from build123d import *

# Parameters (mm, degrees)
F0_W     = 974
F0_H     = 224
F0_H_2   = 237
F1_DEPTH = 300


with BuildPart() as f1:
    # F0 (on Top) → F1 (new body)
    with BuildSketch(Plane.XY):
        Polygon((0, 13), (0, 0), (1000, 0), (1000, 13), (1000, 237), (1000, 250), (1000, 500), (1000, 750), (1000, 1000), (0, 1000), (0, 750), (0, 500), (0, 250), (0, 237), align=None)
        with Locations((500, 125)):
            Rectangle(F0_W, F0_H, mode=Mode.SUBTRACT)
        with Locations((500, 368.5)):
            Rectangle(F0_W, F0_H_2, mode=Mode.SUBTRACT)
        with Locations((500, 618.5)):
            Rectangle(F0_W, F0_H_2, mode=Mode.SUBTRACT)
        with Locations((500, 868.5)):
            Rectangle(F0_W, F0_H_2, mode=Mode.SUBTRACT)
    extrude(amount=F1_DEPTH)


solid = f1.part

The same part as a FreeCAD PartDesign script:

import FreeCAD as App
import Part
import Sketcher
from FreeCAD import Vector
Q = App.Units.Quantity


def add_polygon(sketch, points):
    """Adds a closed chain of lines whose ends are joined by coincident constraints."""
    first, n = sketch.GeometryCount, len(points)
    for a, b in zip(points, points[1:] + points[:1]):
        sketch.addGeometry(Part.LineSegment(App.Vector(*a, 0), App.Vector(*b, 0)), False)
    for i in range(n):
        sketch.addConstraint(Sketcher.Constraint("Coincident", first + i, 2, first + (i + 1) % n, 1))

doc = App.newDocument("Part")
params = doc.addObject("Spreadsheet::Sheet", "Params")
for row, (alias, value) in enumerate([
    ("sketch1_width", "1000 mm"),
    ("sketch1_width2", "974 mm"),
    ("sketch1_height", "224 mm"),
    ("sketch1_height2", "237 mm"),
    ("pad1_length", "300 mm"),
], start=1):
    params.set(f"A{row}", alias)
    params.set(f"B{row}", "=" + value)
    params.setAlias(f"B{row}", alias)

body = doc.addObject("PartDesign::Body", "Body")

sketch1 = body.newObject("Sketcher::SketchObject", "Sketch")
sketch1.AttachmentSupport = (doc.getObject("XY_Plane"), [""])
sketch1.MapMode = "FlatFace"
add_polygon(sketch1, [(0, 0), (1000, 0), (1000, 1000), (0, 1000)])
add_polygon(sketch1, [(987, 13), (13, 13), (13, 237), (987, 237)])
add_polygon(sketch1, [(987, 250), (13, 250), (13, 487), (987, 487)])
add_polygon(sketch1, [(987, 500), (13, 500), (13, 737), (987, 737)])
add_polygon(sketch1, [(987, 750), (13, 750), (13, 987), (987, 987)])
sketch1.addConstraint(Sketcher.Constraint("Horizontal", 0))
sketch1.addConstraint(Sketcher.Constraint("Vertical", 1))
sketch1.addConstraint(Sketcher.Constraint("Horizontal", 2))
sketch1.addConstraint(Sketcher.Constraint("Vertical", 3))
sketch1.addConstraint(Sketcher.Constraint("Horizontal", 4))
sketch1.addConstraint(Sketcher.Constraint("Vertical", 5))
sketch1.addConstraint(Sketcher.Constraint("Horizontal", 6))
sketch1.addConstraint(Sketcher.Constraint("Vertical", 7))
sketch1.addConstraint(Sketcher.Constraint("Horizontal", 8))
sketch1.addConstraint(Sketcher.Constraint("Vertical", 9))
sketch1.addConstraint(Sketcher.Constraint("Horizontal", 10))
sketch1.addConstraint(Sketcher.Constraint("Vertical", 11))
sketch1.addConstraint(Sketcher.Constraint("Horizontal", 12))
sketch1.addConstraint(Sketcher.Constraint("Vertical", 13))
sketch1.addConstraint(Sketcher.Constraint("Horizontal", 14))
sketch1.addConstraint(Sketcher.Constraint("Vertical", 15))
sketch1.addConstraint(Sketcher.Constraint("Horizontal", 16))
sketch1.addConstraint(Sketcher.Constraint("Vertical", 17))
sketch1.addConstraint(Sketcher.Constraint("Horizontal", 18))
sketch1.addConstraint(Sketcher.Constraint("Vertical", 19))
sketch1.addConstraint(Sketcher.Constraint("Coincident", 3, 2, -1, 1))
sketch1.addConstraint(Sketcher.Constraint("Vertical", 5, 2, 8, 2))
sketch1.addConstraint(Sketcher.Constraint("Vertical", 7, 2, 10, 2))
sketch1.addConstraint(Sketcher.Constraint("Vertical", 9, 2, 12, 2))
sketch1.addConstraint(Sketcher.Constraint("Vertical", 11, 2, 14, 2))
sketch1.addConstraint(Sketcher.Constraint("Vertical", 13, 2, 16, 2))
sketch1.addConstraint(Sketcher.Constraint("Vertical", 15, 2, 18, 2))
sketch1.addConstraint(Sketcher.Constraint("Equal", 2, 1))
sketch1.addConstraint(Sketcher.Constraint("Equal", 11, 13))
sketch1.addConstraint(Sketcher.Constraint("Equal", 15, 17))
sketch1.addConstraint(Sketcher.Constraint("DistanceX", 0, 1, 0, 2, Q("1000 mm")))
sketch1.addConstraint(Sketcher.Constraint("DistanceX", 4, 2, 4, 1, Q("974 mm")))
sketch1.addConstraint(Sketcher.Constraint("DistanceY", 5, 1, 5, 2, Q("224 mm")))
sketch1.addConstraint(Sketcher.Constraint("DistanceY", 9, 1, 9, 2, Q("237 mm")))
sketch1.addConstraint(Sketcher.Constraint("DistanceX", -1, 1, 4, 2, Q("13 mm")))
sketch1.addConstraint(Sketcher.Constraint("DistanceY", -1, 1, 4, 2, Q("13 mm")))
sketch1.addConstraint(Sketcher.Constraint("DistanceY", -1, 1, 8, 2, Q("250 mm")))
sketch1.addConstraint(Sketcher.Constraint("DistanceY", -1, 1, 12, 2, Q("500 mm")))
sketch1.addConstraint(Sketcher.Constraint("DistanceY", -1, 1, 16, 2, Q("750 mm")))
sketch1.setExpression("Constraints[50]", "Params.sketch1_width")
sketch1.setExpression("Constraints[51]", "Params.sketch1_width2")
sketch1.setExpression("Constraints[52]", "Params.sketch1_height")
sketch1.setExpression("Constraints[53]", "Params.sketch1_height2")
pad1 = body.newObject("PartDesign::Pad", "Pad")
pad1.Profile = sketch1
pad1.setExpression("Length", "Params.pad1_length")

doc.recompute()
